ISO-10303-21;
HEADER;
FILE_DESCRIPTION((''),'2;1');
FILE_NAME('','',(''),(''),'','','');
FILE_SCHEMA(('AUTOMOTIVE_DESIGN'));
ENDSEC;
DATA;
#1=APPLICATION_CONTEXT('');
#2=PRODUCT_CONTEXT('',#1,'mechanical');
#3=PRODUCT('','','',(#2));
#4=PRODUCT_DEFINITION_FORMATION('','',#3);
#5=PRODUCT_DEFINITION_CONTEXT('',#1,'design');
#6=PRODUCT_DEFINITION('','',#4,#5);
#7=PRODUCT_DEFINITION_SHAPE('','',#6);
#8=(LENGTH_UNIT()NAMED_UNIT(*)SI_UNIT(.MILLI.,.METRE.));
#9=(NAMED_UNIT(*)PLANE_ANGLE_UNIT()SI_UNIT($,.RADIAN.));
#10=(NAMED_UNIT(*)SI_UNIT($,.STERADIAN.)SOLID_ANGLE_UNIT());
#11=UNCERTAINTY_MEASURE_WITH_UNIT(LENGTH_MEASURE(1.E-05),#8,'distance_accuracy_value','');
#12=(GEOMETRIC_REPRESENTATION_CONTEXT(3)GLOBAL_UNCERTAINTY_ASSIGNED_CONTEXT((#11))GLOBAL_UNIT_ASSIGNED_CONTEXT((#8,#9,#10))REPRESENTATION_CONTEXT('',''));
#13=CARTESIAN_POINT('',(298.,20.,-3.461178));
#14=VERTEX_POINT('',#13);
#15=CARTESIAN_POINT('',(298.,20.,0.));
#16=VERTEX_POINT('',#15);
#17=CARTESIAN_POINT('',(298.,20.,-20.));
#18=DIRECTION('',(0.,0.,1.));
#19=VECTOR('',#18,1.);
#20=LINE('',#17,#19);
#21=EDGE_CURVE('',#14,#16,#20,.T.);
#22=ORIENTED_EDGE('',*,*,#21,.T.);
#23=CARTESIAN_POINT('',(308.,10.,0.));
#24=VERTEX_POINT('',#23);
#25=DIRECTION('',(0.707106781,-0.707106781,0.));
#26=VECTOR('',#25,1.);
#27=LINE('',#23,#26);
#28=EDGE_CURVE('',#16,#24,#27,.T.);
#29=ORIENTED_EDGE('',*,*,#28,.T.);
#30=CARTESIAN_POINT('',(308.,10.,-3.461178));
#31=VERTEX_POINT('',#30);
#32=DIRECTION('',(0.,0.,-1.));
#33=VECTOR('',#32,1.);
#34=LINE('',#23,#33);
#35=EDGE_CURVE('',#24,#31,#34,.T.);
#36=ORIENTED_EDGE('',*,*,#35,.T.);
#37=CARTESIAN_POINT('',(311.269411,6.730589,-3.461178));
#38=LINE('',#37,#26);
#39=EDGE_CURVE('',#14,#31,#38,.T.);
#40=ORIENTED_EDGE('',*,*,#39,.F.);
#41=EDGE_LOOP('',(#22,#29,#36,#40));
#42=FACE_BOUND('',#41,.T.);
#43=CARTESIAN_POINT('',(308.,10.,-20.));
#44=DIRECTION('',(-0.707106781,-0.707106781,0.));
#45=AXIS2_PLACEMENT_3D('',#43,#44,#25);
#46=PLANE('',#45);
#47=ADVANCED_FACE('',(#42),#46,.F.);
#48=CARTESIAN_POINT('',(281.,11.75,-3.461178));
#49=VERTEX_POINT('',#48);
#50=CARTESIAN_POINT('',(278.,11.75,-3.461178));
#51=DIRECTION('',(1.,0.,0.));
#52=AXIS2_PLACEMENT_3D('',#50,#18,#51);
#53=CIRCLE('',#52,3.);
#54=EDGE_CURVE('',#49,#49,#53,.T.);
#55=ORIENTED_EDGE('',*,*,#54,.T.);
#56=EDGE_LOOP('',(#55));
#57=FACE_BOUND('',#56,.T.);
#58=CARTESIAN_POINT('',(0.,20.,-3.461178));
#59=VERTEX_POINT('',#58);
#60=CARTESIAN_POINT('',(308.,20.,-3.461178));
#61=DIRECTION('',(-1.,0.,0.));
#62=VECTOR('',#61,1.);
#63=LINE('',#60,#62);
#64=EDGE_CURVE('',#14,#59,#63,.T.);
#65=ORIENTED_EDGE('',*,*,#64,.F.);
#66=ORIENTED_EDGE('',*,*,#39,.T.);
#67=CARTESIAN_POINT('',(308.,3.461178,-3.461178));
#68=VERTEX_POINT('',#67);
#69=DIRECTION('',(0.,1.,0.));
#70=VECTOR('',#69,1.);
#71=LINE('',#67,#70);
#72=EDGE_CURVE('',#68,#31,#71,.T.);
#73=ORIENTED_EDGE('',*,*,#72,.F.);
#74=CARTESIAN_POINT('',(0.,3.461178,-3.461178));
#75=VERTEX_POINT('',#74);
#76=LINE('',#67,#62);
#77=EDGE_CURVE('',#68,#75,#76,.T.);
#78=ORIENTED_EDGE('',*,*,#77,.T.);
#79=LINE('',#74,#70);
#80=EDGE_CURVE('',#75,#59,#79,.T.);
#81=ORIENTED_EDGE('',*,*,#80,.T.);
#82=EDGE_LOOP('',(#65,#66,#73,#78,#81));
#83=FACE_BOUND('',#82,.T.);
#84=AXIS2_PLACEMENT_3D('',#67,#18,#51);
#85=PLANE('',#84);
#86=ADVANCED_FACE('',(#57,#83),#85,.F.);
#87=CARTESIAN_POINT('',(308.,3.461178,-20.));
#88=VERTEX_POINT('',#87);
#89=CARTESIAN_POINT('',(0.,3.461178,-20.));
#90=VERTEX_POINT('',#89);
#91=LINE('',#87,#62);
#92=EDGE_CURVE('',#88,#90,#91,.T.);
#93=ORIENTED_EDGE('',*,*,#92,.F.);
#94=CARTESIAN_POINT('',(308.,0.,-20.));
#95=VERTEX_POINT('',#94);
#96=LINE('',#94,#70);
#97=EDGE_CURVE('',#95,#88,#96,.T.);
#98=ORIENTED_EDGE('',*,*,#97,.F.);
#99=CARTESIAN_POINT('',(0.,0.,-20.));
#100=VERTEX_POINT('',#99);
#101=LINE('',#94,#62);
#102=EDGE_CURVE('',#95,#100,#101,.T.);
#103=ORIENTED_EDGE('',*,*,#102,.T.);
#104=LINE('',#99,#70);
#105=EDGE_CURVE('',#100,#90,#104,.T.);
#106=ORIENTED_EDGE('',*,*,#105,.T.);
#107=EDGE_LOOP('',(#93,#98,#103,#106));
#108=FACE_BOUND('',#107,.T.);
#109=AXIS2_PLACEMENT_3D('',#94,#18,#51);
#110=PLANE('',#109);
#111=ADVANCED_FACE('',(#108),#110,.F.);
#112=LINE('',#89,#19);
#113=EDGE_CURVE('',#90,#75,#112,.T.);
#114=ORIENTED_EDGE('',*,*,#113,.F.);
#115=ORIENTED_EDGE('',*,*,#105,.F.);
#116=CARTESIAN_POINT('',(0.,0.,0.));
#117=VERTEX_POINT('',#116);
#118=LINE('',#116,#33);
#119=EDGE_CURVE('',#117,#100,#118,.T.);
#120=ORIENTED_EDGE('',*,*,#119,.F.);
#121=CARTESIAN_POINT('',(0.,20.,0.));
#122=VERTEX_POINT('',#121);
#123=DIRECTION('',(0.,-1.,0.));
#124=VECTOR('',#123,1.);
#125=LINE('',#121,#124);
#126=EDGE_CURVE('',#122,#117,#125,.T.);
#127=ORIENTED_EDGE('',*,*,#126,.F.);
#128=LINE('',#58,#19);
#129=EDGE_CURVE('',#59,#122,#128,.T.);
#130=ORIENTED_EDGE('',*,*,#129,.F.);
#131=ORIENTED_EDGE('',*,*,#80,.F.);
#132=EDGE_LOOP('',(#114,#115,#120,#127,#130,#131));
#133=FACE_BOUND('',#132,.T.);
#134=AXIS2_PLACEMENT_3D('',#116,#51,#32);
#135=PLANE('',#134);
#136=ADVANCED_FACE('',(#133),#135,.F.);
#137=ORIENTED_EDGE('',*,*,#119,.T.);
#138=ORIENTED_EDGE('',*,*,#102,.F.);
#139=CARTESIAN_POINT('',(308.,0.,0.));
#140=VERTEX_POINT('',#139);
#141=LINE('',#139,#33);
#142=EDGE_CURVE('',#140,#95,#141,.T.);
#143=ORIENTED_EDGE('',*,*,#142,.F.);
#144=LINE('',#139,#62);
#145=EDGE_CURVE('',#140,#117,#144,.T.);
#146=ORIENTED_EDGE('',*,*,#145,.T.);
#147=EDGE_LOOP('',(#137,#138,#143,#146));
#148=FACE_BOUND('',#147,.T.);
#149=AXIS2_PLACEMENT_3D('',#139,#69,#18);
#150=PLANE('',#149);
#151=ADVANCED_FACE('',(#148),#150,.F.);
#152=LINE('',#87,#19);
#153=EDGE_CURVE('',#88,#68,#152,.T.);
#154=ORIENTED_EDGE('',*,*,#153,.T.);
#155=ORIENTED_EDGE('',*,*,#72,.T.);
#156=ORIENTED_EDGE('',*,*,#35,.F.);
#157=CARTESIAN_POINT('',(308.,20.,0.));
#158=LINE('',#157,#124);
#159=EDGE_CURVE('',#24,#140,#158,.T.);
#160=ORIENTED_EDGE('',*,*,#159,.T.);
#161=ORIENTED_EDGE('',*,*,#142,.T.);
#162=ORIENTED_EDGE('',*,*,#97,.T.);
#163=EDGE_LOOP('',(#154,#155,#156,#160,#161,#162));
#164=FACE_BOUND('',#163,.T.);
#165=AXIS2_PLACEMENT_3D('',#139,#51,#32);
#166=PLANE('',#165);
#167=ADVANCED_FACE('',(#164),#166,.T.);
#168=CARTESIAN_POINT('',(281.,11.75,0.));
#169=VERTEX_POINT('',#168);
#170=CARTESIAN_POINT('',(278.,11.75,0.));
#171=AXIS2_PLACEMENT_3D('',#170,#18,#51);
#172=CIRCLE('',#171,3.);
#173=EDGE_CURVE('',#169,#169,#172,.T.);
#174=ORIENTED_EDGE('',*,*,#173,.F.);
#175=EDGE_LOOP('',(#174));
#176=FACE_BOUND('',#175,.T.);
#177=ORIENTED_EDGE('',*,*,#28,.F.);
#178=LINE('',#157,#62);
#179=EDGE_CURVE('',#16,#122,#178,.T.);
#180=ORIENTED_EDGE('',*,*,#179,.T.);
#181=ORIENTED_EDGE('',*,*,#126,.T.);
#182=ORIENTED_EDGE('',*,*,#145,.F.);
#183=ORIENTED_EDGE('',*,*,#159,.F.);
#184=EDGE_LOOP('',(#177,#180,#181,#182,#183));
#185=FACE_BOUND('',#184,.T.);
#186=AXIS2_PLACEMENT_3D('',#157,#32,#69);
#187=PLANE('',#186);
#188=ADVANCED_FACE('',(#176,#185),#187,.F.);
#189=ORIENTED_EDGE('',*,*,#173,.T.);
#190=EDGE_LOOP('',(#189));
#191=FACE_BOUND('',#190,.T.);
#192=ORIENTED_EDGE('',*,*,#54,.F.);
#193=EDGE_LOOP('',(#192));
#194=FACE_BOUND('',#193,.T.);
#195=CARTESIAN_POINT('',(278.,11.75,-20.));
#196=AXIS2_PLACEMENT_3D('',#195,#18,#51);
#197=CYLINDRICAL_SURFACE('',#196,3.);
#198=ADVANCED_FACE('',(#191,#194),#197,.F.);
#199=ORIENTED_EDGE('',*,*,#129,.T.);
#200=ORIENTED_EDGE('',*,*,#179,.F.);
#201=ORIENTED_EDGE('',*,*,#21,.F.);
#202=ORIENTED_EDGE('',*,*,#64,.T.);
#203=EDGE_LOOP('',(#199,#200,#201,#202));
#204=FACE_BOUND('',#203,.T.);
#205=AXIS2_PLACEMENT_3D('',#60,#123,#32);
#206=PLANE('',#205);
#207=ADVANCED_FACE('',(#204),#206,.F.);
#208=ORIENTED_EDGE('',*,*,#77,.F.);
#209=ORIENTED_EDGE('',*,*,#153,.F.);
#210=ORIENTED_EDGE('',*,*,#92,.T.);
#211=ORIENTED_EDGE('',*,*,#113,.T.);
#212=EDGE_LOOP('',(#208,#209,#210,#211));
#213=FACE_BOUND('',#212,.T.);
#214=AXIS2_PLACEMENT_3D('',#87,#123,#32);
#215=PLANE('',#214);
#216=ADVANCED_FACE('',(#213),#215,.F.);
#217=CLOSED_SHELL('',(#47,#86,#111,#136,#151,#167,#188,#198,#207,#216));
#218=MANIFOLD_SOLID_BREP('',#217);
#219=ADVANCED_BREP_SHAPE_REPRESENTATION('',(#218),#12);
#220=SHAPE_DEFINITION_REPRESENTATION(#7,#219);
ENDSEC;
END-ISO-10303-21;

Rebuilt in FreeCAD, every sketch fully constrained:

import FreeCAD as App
import Part
import Sketcher
from FreeCAD import Vector


def add_polygon(sketch, points):
    """Adds a closed chain of lines whose ends are joined by coincident constraints."""
    first, n = sketch.GeometryCount, len(points)
    for a, b in zip(points, points[1:] + points[:1]):
        sketch.addGeometry(Part.LineSegment(App.Vector(*a, 0), App.Vector(*b, 0)), False)
    for i in range(n):
        sketch.addConstraint(Sketcher.Constraint("Coincident", first + i, 2, first + (i + 1) % n, 1))

doc = App.newDocument("Part")
body = doc.addObject("PartDesign::Body", "Body")

sketch1 = body.newObject("Sketcher::SketchObject", "Sketch")
sketch1.AttachmentSupport = (doc.getObject("YZ_Plane"), [""])
sketch1.MapMode = "FlatFace"
add_polygon(sketch1, [(0, 0), (0, -20), (3.461178, -20), (3.461178, -3.461178), (20, -3.461178), (20, 0)])
sketch1.addConstraint([
    Sketcher.Constraint("Vertical", 0),
    Sketcher.Constraint("Horizontal", 1),
    Sketcher.Constraint("Vertical", 2),
    Sketcher.Constraint("Horizontal", 3),
    Sketcher.Constraint("Vertical", 4),
    Sketcher.Constraint("Horizontal", 5),
    Sketcher.Constraint("Coincident", 5, 2, -1, 1),
    Sketcher.Constraint("Equal", 5, 0),
    Sketcher.Constraint("Equal", 3, 2),
    Sketcher.Constraint("DistanceX", 5, 2, 5, 1, 20.0),
    Sketcher.Constraint("DistanceX", 1, 1, 1, 2, 3.461178),
])
pad1 = body.newObject("PartDesign::Pad", "Pad")
pad1.Profile = sketch1
pad1.Length = 308

sketch2 = body.newObject("Sketcher::SketchObject", "Sketch001")
sketch2.AttachmentSupport = (doc.getObject("XY_Plane"), [""])
sketch2.MapMode = "FlatFace"
sketch2.addGeometry(Part.Circle(Vector(278, 11.75, 0), Vector(0, 0, 1), 3), False)
add_polygon(sketch2, [(298, 20), (308, 10), (308, 20)])
sketch2.addConstraint([
    Sketcher.Constraint("Vertical", 2),
    Sketcher.Constraint("Horizontal", 3),
    Sketcher.Constraint("Equal", 3, 2),
    Sketcher.Constraint("Diameter", 0, 6.0),
    Sketcher.Constraint("DistanceX", 3, 2, 3, 1, 10.0),
    Sketcher.Constraint("DistanceX", -1, 1, 0, 3, 278.0),
    Sketcher.Constraint("DistanceX", -1, 1, 1, 2, 308.0),
    Sketcher.Constraint("DistanceY", -1, 1, 1, 2, 10.0),
    Sketcher.Constraint("DistanceY", -1, 1, 0, 3, 11.75),
])
pocket1 = body.newObject("PartDesign::Pocket", "Pocket")
pocket1.Profile = sketch2
pocket1.Type = "ThroughAll"

doc.recompute()
